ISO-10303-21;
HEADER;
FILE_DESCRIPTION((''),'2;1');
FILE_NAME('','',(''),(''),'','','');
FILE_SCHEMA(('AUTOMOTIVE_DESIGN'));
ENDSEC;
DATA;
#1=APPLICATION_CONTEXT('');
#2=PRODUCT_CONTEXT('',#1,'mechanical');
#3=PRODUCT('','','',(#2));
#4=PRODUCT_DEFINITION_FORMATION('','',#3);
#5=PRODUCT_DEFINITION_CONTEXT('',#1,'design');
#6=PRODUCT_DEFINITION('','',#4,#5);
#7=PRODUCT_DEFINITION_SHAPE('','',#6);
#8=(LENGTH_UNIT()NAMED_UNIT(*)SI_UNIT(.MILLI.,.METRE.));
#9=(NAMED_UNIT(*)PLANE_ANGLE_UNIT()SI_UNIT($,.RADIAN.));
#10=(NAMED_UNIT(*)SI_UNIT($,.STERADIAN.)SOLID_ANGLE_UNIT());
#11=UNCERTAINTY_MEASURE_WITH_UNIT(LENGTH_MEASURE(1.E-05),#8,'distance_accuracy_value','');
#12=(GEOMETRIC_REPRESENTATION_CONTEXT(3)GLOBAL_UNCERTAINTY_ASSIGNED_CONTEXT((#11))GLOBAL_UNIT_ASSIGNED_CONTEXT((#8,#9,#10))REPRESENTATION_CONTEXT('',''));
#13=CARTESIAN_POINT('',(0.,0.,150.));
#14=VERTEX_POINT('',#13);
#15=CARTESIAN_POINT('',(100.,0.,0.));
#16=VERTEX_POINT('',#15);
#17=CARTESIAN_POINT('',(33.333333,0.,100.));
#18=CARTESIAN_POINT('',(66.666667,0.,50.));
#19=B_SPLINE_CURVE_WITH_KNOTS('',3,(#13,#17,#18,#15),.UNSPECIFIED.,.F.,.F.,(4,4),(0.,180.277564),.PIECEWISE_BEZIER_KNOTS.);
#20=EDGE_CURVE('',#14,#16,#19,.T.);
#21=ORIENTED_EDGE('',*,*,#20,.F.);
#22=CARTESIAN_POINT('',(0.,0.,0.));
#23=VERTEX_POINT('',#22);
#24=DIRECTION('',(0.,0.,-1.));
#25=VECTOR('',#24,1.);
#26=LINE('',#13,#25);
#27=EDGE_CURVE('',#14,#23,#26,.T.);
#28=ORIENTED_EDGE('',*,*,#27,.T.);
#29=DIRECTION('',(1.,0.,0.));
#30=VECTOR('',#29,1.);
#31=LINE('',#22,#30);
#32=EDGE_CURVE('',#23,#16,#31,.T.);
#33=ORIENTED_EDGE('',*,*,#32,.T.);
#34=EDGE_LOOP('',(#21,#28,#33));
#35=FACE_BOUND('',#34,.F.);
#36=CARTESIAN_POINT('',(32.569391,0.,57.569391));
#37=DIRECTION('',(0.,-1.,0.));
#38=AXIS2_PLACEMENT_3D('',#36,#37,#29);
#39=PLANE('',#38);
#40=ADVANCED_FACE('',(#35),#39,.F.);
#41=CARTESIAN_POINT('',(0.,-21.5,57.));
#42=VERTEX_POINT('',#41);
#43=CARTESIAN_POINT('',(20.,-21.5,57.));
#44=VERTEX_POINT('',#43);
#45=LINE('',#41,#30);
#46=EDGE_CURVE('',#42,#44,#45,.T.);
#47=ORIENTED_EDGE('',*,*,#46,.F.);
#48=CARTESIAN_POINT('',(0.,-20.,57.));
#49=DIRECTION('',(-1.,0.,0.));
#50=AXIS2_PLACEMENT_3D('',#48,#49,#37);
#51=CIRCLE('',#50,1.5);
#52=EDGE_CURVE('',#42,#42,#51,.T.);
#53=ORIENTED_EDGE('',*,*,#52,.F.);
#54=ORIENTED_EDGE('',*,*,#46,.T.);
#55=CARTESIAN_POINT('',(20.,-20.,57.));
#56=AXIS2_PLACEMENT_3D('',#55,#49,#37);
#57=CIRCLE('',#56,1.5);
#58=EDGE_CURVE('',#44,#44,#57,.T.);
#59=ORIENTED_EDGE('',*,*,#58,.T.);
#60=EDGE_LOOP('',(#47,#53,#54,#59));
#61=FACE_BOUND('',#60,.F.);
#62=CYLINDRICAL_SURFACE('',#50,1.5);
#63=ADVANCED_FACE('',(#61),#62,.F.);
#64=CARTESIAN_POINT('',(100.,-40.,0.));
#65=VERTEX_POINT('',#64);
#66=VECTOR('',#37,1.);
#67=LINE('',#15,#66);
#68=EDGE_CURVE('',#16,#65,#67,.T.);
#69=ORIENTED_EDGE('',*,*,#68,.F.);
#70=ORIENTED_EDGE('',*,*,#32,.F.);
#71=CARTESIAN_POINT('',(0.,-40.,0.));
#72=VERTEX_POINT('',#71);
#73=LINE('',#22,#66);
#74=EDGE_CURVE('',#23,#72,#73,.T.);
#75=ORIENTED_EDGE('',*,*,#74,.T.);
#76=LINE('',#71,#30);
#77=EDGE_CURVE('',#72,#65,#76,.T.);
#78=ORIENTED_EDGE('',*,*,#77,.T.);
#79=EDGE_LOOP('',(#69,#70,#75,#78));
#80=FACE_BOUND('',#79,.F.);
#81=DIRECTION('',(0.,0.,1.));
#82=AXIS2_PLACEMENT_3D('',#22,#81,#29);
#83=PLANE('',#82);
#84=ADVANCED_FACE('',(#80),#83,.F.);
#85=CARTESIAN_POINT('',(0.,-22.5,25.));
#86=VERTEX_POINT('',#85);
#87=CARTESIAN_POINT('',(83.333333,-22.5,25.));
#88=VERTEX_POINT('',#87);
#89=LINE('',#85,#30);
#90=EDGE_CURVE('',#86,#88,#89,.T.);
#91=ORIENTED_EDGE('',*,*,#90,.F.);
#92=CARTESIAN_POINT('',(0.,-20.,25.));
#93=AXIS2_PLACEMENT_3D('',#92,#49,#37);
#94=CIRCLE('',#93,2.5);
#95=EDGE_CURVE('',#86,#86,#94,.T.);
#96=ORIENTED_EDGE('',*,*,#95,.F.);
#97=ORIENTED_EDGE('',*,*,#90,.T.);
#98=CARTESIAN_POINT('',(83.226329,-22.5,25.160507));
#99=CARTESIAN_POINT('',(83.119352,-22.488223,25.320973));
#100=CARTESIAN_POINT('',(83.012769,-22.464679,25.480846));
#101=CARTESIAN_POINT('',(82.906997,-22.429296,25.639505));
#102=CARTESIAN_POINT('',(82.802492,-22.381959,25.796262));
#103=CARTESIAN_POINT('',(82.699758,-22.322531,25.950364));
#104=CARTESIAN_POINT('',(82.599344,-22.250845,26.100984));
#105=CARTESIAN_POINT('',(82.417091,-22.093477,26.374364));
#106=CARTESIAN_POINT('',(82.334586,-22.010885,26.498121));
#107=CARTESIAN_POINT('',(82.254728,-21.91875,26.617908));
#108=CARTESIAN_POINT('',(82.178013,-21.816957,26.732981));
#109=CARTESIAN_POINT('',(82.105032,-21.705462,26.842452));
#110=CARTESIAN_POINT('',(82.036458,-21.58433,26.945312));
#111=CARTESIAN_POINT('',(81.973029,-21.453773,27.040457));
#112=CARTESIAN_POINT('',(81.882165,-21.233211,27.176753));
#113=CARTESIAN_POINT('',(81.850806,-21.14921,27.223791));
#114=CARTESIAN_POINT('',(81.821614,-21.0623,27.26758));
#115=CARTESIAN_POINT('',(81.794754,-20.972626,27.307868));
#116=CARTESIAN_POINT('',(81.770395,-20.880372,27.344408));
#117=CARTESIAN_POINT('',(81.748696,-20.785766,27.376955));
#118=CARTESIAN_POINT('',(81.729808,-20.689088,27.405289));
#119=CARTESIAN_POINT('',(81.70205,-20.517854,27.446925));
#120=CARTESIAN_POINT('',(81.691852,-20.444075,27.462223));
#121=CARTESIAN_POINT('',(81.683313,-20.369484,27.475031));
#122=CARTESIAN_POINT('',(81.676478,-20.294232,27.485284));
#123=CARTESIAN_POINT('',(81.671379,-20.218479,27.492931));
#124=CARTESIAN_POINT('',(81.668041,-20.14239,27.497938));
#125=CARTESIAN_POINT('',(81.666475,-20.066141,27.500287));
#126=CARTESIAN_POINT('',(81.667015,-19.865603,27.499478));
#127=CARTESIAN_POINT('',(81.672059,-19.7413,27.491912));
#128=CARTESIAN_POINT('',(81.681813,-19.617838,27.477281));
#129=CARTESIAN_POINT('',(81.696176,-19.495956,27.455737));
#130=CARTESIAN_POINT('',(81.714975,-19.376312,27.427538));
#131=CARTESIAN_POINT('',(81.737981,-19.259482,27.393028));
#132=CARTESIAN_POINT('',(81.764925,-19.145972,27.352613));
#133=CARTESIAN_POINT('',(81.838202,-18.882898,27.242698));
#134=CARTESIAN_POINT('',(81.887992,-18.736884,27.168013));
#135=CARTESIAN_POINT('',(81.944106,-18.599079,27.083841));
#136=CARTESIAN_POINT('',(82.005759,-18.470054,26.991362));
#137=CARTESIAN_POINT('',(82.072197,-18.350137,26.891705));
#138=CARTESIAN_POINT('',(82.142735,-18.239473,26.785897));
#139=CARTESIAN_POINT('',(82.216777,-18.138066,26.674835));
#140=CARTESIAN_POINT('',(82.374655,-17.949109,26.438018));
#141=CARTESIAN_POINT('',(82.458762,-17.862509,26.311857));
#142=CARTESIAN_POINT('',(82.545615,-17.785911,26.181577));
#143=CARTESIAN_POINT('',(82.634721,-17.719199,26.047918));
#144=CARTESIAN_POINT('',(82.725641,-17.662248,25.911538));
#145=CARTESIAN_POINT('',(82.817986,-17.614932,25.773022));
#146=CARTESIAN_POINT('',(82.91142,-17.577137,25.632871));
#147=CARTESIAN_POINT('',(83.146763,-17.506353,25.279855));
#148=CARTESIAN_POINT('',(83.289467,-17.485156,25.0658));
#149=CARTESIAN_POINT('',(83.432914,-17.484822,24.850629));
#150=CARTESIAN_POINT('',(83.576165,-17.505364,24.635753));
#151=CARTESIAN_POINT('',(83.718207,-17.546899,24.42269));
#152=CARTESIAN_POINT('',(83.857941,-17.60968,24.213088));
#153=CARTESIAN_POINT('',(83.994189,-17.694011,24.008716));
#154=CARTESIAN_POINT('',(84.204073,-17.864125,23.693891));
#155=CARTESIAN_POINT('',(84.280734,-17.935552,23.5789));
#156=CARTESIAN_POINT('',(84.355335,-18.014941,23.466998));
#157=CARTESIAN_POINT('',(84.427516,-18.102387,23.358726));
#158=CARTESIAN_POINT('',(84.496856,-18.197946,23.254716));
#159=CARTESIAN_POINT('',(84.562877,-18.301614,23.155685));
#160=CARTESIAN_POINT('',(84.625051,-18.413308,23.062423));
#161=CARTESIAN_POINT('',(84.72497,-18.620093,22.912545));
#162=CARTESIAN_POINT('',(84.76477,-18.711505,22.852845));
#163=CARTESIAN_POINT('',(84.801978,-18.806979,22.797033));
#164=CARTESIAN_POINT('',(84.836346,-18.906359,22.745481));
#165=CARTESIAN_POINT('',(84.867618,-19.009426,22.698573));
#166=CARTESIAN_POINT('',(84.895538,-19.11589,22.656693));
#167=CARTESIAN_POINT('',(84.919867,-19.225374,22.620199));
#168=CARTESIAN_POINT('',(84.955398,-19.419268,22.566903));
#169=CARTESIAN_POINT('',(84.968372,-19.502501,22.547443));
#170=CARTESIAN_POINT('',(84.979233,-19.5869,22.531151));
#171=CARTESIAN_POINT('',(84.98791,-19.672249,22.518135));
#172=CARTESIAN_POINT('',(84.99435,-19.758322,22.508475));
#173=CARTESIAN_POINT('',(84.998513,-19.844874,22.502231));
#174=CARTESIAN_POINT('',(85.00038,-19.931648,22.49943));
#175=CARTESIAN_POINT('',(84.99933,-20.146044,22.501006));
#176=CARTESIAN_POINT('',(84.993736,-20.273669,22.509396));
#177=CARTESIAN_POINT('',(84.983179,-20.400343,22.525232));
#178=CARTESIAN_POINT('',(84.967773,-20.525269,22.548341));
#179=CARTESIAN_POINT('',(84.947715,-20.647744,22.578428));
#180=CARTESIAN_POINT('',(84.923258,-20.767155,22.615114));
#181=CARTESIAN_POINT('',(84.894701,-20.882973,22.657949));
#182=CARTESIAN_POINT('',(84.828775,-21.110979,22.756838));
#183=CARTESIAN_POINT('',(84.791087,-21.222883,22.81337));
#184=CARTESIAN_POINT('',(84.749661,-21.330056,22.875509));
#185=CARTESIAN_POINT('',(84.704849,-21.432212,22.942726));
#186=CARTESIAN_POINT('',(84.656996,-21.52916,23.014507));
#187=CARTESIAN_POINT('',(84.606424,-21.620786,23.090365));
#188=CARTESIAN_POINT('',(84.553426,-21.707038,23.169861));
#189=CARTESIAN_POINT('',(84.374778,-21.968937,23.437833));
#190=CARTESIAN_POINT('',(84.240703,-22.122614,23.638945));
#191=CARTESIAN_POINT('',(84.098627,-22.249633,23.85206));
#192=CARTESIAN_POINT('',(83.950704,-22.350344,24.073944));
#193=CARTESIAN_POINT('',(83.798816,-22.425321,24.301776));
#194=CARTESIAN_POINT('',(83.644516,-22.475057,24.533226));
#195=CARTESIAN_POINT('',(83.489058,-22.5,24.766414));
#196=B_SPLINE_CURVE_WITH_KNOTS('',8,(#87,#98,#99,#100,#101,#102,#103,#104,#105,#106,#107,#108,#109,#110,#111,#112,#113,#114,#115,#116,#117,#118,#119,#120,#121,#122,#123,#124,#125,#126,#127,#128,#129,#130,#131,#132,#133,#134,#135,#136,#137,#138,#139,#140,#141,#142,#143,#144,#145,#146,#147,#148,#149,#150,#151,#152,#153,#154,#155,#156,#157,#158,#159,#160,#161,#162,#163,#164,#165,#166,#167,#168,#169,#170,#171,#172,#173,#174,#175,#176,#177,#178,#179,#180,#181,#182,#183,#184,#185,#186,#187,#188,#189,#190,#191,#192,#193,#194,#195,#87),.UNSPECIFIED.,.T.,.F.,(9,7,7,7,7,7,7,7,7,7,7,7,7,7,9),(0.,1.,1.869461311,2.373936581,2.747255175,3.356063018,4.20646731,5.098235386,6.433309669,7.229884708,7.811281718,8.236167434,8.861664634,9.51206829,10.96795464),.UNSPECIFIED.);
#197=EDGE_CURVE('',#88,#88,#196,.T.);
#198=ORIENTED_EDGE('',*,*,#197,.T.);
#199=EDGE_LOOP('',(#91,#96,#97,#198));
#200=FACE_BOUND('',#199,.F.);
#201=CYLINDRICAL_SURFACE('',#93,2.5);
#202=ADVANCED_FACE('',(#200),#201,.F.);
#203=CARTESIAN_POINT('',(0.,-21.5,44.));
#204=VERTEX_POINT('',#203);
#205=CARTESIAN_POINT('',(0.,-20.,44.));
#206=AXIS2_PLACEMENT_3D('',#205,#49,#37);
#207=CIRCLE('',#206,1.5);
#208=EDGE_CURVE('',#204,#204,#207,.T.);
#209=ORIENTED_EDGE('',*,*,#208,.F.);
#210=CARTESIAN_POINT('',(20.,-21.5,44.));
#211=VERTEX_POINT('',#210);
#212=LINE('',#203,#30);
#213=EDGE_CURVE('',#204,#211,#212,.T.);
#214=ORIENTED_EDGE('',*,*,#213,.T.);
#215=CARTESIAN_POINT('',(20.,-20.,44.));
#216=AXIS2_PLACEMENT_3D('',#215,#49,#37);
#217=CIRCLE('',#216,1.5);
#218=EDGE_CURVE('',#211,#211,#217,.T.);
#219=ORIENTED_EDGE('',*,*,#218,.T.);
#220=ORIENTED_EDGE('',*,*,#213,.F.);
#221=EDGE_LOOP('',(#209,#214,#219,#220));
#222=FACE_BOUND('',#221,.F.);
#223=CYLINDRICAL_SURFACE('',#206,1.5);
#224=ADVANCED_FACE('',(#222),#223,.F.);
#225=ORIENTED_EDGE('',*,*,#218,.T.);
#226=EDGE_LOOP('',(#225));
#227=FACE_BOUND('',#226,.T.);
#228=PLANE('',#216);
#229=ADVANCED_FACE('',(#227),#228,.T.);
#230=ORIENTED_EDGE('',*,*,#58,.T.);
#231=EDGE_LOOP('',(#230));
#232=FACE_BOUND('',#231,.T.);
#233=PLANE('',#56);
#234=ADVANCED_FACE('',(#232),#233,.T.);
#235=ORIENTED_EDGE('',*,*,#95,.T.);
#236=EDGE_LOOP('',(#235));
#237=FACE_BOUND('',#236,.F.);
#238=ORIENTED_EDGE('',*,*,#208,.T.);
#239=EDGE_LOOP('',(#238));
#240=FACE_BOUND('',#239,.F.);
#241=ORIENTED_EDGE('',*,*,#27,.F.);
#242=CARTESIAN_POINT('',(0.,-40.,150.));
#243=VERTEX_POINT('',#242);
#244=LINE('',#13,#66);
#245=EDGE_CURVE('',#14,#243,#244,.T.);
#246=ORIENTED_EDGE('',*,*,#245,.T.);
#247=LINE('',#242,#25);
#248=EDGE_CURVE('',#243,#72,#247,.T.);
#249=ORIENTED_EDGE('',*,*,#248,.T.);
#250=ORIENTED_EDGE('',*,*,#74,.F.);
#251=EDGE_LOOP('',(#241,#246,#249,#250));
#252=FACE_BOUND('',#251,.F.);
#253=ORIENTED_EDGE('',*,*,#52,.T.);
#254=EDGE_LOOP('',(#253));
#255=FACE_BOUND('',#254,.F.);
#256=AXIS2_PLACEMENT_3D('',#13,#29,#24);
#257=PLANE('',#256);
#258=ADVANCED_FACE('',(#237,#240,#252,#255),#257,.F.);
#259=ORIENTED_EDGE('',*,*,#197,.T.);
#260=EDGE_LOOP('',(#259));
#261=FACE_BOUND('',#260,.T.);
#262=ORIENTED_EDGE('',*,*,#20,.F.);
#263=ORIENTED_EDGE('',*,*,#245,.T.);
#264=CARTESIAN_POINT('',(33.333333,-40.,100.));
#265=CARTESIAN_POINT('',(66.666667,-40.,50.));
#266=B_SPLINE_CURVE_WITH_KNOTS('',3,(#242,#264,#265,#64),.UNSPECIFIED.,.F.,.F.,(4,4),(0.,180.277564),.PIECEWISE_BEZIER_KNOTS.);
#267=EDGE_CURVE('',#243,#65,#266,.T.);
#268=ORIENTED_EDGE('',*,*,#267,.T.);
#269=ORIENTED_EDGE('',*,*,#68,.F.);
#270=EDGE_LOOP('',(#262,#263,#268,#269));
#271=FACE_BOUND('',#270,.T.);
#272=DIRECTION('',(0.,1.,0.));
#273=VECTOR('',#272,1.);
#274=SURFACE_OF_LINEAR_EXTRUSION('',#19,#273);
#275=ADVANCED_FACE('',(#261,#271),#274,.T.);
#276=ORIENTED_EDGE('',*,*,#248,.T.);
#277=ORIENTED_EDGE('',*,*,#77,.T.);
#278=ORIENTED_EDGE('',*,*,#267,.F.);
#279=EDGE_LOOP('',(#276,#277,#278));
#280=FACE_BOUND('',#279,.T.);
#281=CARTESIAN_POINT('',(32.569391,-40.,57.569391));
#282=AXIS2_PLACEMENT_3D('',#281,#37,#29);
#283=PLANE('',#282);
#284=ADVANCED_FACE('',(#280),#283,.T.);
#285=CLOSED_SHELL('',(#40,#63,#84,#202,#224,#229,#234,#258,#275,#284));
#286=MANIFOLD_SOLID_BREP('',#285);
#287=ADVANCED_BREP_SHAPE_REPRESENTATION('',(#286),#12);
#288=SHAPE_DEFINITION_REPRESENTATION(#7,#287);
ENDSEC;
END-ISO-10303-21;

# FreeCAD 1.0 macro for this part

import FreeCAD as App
import Part
import Sketcher

doc = App.newDocument("Part")
body = doc.addObject("PartDesign::Body", "Body")

sketch1 = doc.addObject("Sketcher::SketchObject", "Sketch")
body.addObject(sketch1)
sketch1.AttachmentSupport = (doc.XZ_Plane, [""])
sketch1.MapMode = "FlatFace"
sketch1.addGeometry(Part.LineSegment(App.Vector(0, 150, 0), App.Vector(0, 0, 0)), False)
sketch1.addGeometry(Part.LineSegment(App.Vector(0, 0, 0), App.Vector(100, 0, 0)), False)
sketch1.addGeometry(Part.BSplineCurve([App.Vector(0, 150, 0), App.Vector(33.333333, 100, 0), App.Vector(66.666667, 50, 0), App.Vector(100, 0, 0)], [4, 4], [0, 180.277564], False, 3, [1, 1, 1, 1], False), False)
sketch1.addConstraint(Sketcher.Constraint("Block", 2))
sketch1.addConstraint(Sketcher.Constraint("Coincident", 0, 2, 1, 1))
sketch1.addConstraint(Sketcher.Constraint("Coincident", 1, 2, 2, 2))
sketch1.addConstraint(Sketcher.Constraint("Coincident", 2, 1, 0, 1))
sketch1.addConstraint(Sketcher.Constraint("Vertical", 0))
sketch1.addConstraint(Sketcher.Constraint("Horizontal", 1))
pad1 = doc.addObject("PartDesign::Pad", "Pad")
body.addObject(pad1)
pad1.Profile = sketch1
pad1.Length = 40

sketch2 = doc.addObject("Sketcher::SketchObject", "Sketch001")
body.addObject(sketch2)
sketch2.AttachmentSupport = (doc.YZ_Plane, [""])
sketch2.MapMode = "FlatFace"
sketch2.addGeometry(Part.Circle(App.Vector(-20, 25, 0), App.Vector(0, 0, 1), 2.5), False)
sketch2.addConstraint(Sketcher.Constraint("Diameter", 0, 5.0))
sketch2.addConstraint(Sketcher.Constraint("DistanceX", 0, 3, -1, 1, 20.0))
sketch2.addConstraint(Sketcher.Constraint("DistanceY", -1, 1, 0, 3, 25.0))
pocket1 = doc.addObject("PartDesign::Pocket", "Pocket")
body.addObject(pocket1)
pocket1.Profile = sketch2
pocket1.Type = "ThroughAll"
pocket1.Reversed = True

sketch3 = doc.addObject("Sketcher::SketchObject", "Sketch002")
body.addObject(sketch3)
sketch3.AttachmentSupport = (doc.YZ_Plane, [""])
sketch3.MapMode = "FlatFace"
sketch3.addGeometry(Part.Circle(App.Vector(-20, 57, 0), App.Vector(0, 0, 1), 1.5), False)
sketch3.addGeometry(Part.Circle(App.Vector(-20, 44, 0), App.Vector(0, 0, 1), 1.5), False)
sketch3.addConstraint(Sketcher.Constraint("Equal", 0, 1))
sketch3.addConstraint(Sketcher.Constraint("Vertical", 0, 3, 1, 3))
sketch3.addConstraint(Sketcher.Constraint("Diameter", 0, 3.0))
sketch3.addConstraint(Sketcher.Constraint("DistanceX", 0, 3, -1, 1, 20.0))
sketch3.addConstraint(Sketcher.Constraint("DistanceY", -1, 1, 0, 3, 57.0))
sketch3.addConstraint(Sketcher.Constraint("DistanceY", -1, 1, 1, 3, 44.0))
pocket2 = doc.addObject("PartDesign::Pocket", "Pocket001")
body.addObject(pocket2)
pocket2.Profile = sketch3
pocket2.Length = 20
pocket2.Reversed = True

doc.recompute()
